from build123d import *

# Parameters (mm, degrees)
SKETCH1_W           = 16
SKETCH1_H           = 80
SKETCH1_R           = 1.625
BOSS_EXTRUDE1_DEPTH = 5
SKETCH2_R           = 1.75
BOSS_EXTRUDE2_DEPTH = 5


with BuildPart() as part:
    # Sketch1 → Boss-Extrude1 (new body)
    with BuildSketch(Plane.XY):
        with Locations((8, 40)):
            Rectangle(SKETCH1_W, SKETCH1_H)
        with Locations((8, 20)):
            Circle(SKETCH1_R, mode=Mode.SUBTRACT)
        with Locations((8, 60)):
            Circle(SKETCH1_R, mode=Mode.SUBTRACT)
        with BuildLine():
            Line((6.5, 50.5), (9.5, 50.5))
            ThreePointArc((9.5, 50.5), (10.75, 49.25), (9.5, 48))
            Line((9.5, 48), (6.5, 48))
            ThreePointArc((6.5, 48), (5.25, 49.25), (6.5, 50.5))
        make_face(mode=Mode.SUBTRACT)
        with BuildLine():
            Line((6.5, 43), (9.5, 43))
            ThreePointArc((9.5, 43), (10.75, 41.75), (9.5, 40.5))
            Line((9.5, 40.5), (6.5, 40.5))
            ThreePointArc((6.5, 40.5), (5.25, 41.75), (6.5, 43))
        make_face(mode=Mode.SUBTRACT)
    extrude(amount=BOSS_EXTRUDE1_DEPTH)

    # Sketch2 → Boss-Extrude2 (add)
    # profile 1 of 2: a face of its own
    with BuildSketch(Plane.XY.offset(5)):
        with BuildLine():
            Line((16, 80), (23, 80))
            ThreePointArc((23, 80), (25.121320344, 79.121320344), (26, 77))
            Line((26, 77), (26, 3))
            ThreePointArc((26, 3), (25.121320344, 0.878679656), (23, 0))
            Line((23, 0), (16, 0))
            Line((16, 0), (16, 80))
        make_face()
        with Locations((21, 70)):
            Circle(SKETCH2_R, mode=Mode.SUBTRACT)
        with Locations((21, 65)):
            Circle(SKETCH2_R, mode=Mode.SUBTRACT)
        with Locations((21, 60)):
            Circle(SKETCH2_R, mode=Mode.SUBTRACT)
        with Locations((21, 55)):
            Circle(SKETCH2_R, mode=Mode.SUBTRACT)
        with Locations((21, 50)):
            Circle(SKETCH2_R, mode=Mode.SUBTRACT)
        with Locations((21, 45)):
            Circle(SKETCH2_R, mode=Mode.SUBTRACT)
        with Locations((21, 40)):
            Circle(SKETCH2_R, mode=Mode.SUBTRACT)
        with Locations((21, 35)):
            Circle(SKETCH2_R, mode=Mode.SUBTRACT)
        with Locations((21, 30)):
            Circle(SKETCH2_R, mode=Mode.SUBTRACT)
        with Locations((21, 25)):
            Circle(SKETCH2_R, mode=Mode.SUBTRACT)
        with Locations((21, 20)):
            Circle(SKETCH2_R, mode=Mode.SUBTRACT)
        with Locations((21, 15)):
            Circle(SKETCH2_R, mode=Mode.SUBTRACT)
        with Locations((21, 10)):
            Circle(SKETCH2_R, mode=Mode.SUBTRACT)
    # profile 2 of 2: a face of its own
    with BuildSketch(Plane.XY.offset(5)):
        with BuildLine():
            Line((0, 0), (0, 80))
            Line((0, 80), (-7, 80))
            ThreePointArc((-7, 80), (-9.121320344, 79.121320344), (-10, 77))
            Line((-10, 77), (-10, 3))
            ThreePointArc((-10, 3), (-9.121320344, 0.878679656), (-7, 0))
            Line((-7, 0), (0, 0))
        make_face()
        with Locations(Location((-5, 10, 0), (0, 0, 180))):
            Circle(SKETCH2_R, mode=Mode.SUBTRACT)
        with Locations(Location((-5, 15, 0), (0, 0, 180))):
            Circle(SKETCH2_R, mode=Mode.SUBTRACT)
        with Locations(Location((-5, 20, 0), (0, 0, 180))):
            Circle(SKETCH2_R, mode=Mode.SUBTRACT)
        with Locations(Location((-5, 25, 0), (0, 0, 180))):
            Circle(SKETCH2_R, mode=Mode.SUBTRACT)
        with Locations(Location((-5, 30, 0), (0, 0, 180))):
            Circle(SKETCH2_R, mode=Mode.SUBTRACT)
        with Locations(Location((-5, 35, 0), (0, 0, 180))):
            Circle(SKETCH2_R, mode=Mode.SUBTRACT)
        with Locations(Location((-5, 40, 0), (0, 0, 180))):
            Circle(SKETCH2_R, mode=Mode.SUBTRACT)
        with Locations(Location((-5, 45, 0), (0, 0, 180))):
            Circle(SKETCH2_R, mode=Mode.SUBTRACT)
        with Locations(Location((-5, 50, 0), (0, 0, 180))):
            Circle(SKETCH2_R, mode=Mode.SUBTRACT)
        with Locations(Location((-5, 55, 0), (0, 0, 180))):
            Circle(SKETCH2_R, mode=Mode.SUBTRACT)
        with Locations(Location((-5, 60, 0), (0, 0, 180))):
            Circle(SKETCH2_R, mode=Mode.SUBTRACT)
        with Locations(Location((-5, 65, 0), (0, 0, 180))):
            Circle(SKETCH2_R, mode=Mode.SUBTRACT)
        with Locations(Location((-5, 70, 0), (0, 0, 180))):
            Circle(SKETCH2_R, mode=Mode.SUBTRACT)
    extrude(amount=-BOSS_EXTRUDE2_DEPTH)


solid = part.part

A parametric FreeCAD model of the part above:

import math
import FreeCAD as App
import Part
import Sketcher

V = App.Vector
Q = App.Units.Quantity

doc = App.newDocument("Part")
body = doc.addObject("PartDesign::Body", "Body")

sketch1 = doc.addObject("Sketcher::SketchObject", "Sketch")
body.addObject(sketch1)
sketch1.AttachmentSupport = (doc.XY_Plane, [""])
sketch1.MapMode = "FlatFace"
sketch1.addGeometry(Part.LineSegment(V(0, 80, 0), V(0, 0, 0)), False)
sketch1.addGeometry(Part.LineSegment(V(0, 0, 0), V(16, 0, 0)), False)
sketch1.addGeometry(Part.LineSegment(V(16, 0, 0), V(16, 80, 0)), False)
sketch1.addGeometry(Part.LineSegment(V(16, 80, 0), V(0, 80, 0)), False)
sketch1.addGeometry(Part.Circle(V(8, 20, 0), V(0, 0, 1), 1.6), False)
sketch1.addGeometry(Part.ArcOfCircle(Part.Circle(V(6.5, 41.8, 0), V(0, 0, 1), 1.2), math.radians(90), math.radians(270)), False)
sketch1.addGeometry(Part.LineSegment(V(6.5, 43, 0), V(9.5, 43, 0)), False)
sketch1.addGeometry(Part.ArcOfCircle(Part.Circle(V(9.5, 41.8, 0), V(0, 0, 1), 1.2), math.radians(-90), math.radians(90)), False)
sketch1.addGeometry(Part.LineSegment(V(9.5, 40.5, 0), V(6.5, 40.5, 0)), False)
sketch1.addGeometry(Part.ArcOfCircle(Part.Circle(V(6.5, 49.2, 0), V(0, 0, 1), 1.2), math.radians(90), math.radians(270)), False)
sketch1.addGeometry(Part.LineSegment(V(6.5, 50.5, 0), V(9.5, 50.5, 0)), False)
sketch1.addGeometry(Part.ArcOfCircle(Part.Circle(V(9.5, 49.2, 0), V(0, 0, 1), 1.2), math.radians(-90), math.radians(90)), False)
sketch1.addGeometry(Part.LineSegment(V(9.5, 48, 0), V(6.5, 48, 0)), False)
sketch1.addGeometry(Part.Circle(V(8, 60, 0), V(0, 0, 1), 1.6), False)
sketch1.addConstraint(Sketcher.Constraint("Coincident", 0, 2, 1, 1))
sketch1.addConstraint(Sketcher.Constraint("Coincident", 1, 2, 2, 1))
sketch1.addConstraint(Sketcher.Constraint("Coincident", 2, 2, 3, 1))
sketch1.addConstraint(Sketcher.Constraint("Coincident", 3, 2, 0, 1))
sketch1.addConstraint(Sketcher.Constraint("Tangent", 5, 1, 6, 1))
sketch1.addConstraint(Sketcher.Constraint("Tangent", 6, 2, 7, 2))
sketch1.addConstraint(Sketcher.Constraint("Tangent", 7, 1, 8, 1))
sketch1.addConstraint(Sketcher.Constraint("Tangent", 8, 2, 5, 2))
sketch1.addConstraint(Sketcher.Constraint("Tangent", 9, 1, 10, 1))
sketch1.addConstraint(Sketcher.Constraint("Tangent", 10, 2, 11, 2))
sketch1.addConstraint(Sketcher.Constraint("Tangent", 11, 1, 12, 1))
sketch1.addConstraint(Sketcher.Constraint("Tangent", 12, 2, 9, 2))
sketch1.addConstraint(Sketcher.Constraint("Vertical", 0))
sketch1.addConstraint(Sketcher.Constraint("Horizontal", 1))
sketch1.addConstraint(Sketcher.Constraint("Vertical", 2))
sketch1.addConstraint(Sketcher.Constraint("Horizontal", 3))
sketch1.addConstraint(Sketcher.Constraint("Horizontal", 6))
sketch1.addConstraint(Sketcher.Constraint("Horizontal", 8))
sketch1.addConstraint(Sketcher.Constraint("Horizontal", 10))
sketch1.addConstraint(Sketcher.Constraint("Horizontal", 12))
sketch1.addConstraint(Sketcher.Constraint("Coincident", 0, 2, -1, 1))
sketch1.addConstraint(Sketcher.Constraint("Equal", 7, 9))
sketch1.addConstraint(Sketcher.Constraint("Equal", 4, 13))
sketch1.addConstraint(Sketcher.Constraint("Vertical", 5, 3, 9, 3))
sketch1.addConstraint(Sketcher.Constraint("Vertical", 7, 3, 11, 3))
sketch1.addConstraint(Sketcher.Constraint("Vertical", 4, 3, 13, 3))
sketch1.addConstraint(Sketcher.Constraint("Diameter", 4, Q("3.25 mm")))
sketch1.addConstraint(Sketcher.Constraint("DistanceX", 1, 1, 1, 2, Q("16 mm")))
sketch1.addConstraint(Sketcher.Constraint("DistanceX", 6, 1, 6, 2, Q("3 mm")))
sketch1.addConstraint(Sketcher.Constraint("DistanceY", 0, 2, 0, 1, Q("80 mm")))
sketch1.addConstraint(Sketcher.Constraint("Radius", 5, Q("1.25 mm")))
sketch1.addConstraint(Sketcher.Constraint("DistanceX", -1, 1, 4, 3, Q("8 mm")))
sketch1.addConstraint(Sketcher.Constraint("DistanceY", -1, 1, 4, 3, Q("20 mm")))
sketch1.addConstraint(Sketcher.Constraint("DistanceY", -1, 1, 13, 3, Q("60 mm")))
sketch1.addConstraint(Sketcher.Constraint("DistanceY", -1, 1, 5, 1, Q("43 mm")))
sketch1.addConstraint(Sketcher.Constraint("DistanceY", -1, 1, 11, 1, Q("48 mm")))
sketch1.addConstraint(Sketcher.Constraint("DistanceX", -1, 1, 5, 3, Q("6.5 mm")))
pad1 = doc.addObject("PartDesign::Pad", "Pad")
body.addObject(pad1)
pad1.Profile = sketch1
pad1.Length = 5

sketch2 = doc.addObject("Sketcher::SketchObject", "Sketch001")
body.addObject(sketch2)
sketch2.AttachmentSupport = (doc.XY_Plane, [""])
sketch2.MapMode = "FlatFace"
sketch2.AttachmentOffset = App.Placement(V(0, 0, 5), App.Rotation())
sketch2.addGeometry(Part.LineSegment(V(23, 80, 0), V(16, 80, 0)), False)
sketch2.addGeometry(Part.LineSegment(V(16, 80, 0), V(16, 0, 0)), False)
sketch2.addGeometry(Part.LineSegment(V(16, 0, 0), V(23, 0, 0)), False)
sketch2.addGeometry(Part.ArcOfCircle(Part.Circle(V(23, 3, 0), V(0, 0, 1), 3), math.radians(-90), math.radians(0)), False)
sketch2.addGeometry(Part.LineSegment(V(26, 3, 0), V(26, 77, 0)), False)
sketch2.addGeometry(Part.ArcOfCircle(Part.Circle(V(23, 77, 0), V(0, 0, 1), 3), math.radians(0), math.radians(90)), False)
sketch2.addGeometry(Part.Circle(V(21, 10, 0), V(0, 0, 1), 1.8), False)
sketch2.addGeometry(Part.Circle(V(21, 15, 0), V(0, 0, 1), 1.8), False)
sketch2.addGeometry(Part.Circle(V(21, 20, 0), V(0, 0, 1), 1.8), False)
sketch2.addGeometry(Part.Circle(V(21, 25, 0), V(0, 0, 1), 1.8), False)
sketch2.addGeometry(Part.Circle(V(21, 30, 0), V(0, 0, 1), 1.8), False)
sketch2.addGeometry(Part.Circle(V(21, 35, 0), V(0, 0, 1), 1.8), False)
sketch2.addGeometry(Part.Circle(V(21, 40, 0), V(0, 0, 1), 1.8), False)
sketch2.addGeometry(Part.Circle(V(21, 45, 0), V(0, 0, 1), 1.8), False)
sketch2.addGeometry(Part.Circle(V(21, 50, 0), V(0, 0, 1), 1.8), False)
sketch2.addGeometry(Part.Circle(V(21, 55, 0), V(0, 0, 1), 1.8), False)
sketch2.addGeometry(Part.Circle(V(21, 60, 0), V(0, 0, 1), 1.8), False)
sketch2.addGeometry(Part.Circle(V(21, 65, 0), V(0, 0, 1), 1.8), False)
sketch2.addGeometry(Part.Circle(V(21, 70, 0), V(0, 0, 1), 1.8), False)
sketch2.addGeometry(Part.LineSegment(V(0, 0, 0), V(0, 80, 0)), False)
sketch2.addGeometry(Part.LineSegment(V(0, 80, 0), V(-7, 80, 0)), False)
sketch2.addGeometry(Part.ArcOfCircle(Part.Circle(V(-7, 77, 0), V(0, 0, 1), 3), math.radians(90), math.radians(180)), False)
sketch2.addGeometry(Part.LineSegment(V(-10, 77, 0), V(-10, 3, 0)), False)
sketch2.addGeometry(Part.ArcOfCircle(Part.Circle(V(-7, 3, 0), V(0, 0, 1), 3), math.radians(180), math.radians(270)), False)
sketch2.addGeometry(Part.LineSegment(V(-7, 0, 0), V(0, 0, 0)), False)
sketch2.addGeometry(Part.Circle(V(-5, 10, 0), V(0, 0, 1), 1.8), False)
sketch2.addGeometry(Part.Circle(V(-5, 15, 0), V(0, 0, 1), 1.8), False)
sketch2.addGeometry(Part.Circle(V(-5, 20, 0), V(0, 0, 1), 1.8), False)
sketch2.addGeometry(Part.Circle(V(-5, 25, 0), V(0, 0, 1), 1.8), False)
sketch2.addGeometry(Part.Circle(V(-5, 30, 0), V(0, 0, 1), 1.8), False)
sketch2.addGeometry(Part.Circle(V(-5, 35, 0), V(0, 0, 1), 1.8), False)
sketch2.addGeometry(Part.Circle(V(-5, 40, 0), V(0, 0, 1), 1.8), False)
sketch2.addGeometry(Part.Circle(V(-5, 45, 0), V(0, 0, 1), 1.8), False)
sketch2.addGeometry(Part.Circle(V(-5, 50, 0), V(0, 0, 1), 1.8), False)
sketch2.addGeometry(Part.Circle(V(-5, 55, 0), V(0, 0, 1), 1.8), False)
sketch2.addGeometry(Part.Circle(V(-5, 60, 0), V(0, 0, 1), 1.8), False)
sketch2.addGeometry(Part.Circle(V(-5, 65, 0), V(0, 0, 1), 1.8), False)
sketch2.addGeometry(Part.Circle(V(-5, 70, 0), V(0, 0, 1), 1.8), False)
sketch2.addConstraint(Sketcher.Constraint("Coincident", 0, 2, 1, 1))
sketch2.addConstraint(Sketcher.Constraint("Coincident", 1, 2, 2, 1))
sketch2.addConstraint(Sketcher.Constraint("Tangent", 2, 2, 3, 1))
sketch2.addConstraint(Sketcher.Constraint("Tangent", 3, 2, 4, 1))
sketch2.addConstraint(Sketcher.Constraint("Tangent", 4, 2, 5, 1))
sketch2.addConstraint(Sketcher.Constraint("Tangent", 5, 2, 0, 1))
sketch2.addConstraint(Sketcher.Constraint("Coincident", 19, 2, 20, 1))
sketch2.addConstraint(Sketcher.Constraint("Tangent", 20, 2, 21, 1))
sketch2.addConstraint(Sketcher.Constraint("Tangent", 21, 2, 22, 1))
sketch2.addConstraint(Sketcher.Constraint("Tangent", 22, 2, 23, 1))
sketch2.addConstraint(Sketcher.Constraint("Tangent", 23, 2, 24, 1))
sketch2.addConstraint(Sketcher.Constraint("Coincident", 24, 2, 19, 1))
sketch2.addConstraint(Sketcher.Constraint("Horizontal", 0))
sketch2.addConstraint(Sketcher.Constraint("Vertical", 1))
sketch2.addConstraint(Sketcher.Constraint("Horizontal", 2))
sketch2.addConstraint(Sketcher.Constraint("Vertical", 4))
sketch2.addConstraint(Sketcher.Constraint("Vertical", 19))
sketch2.addConstraint(Sketcher.Constraint("Horizontal", 20))
sketch2.addConstraint(Sketcher.Constraint("Vertical", 22))
sketch2.addConstraint(Sketcher.Constraint("Horizontal", 24))
sketch2.addConstraint(Sketcher.Constraint("Coincident", 24, 2, -1, 1))
sketch2.addConstraint(Sketcher.Constraint("Equal", 3, 5))
sketch2.addConstraint(Sketcher.Constraint("Equal", 6, 7))
sketch2.addConstraint(Sketcher.Constraint("Equal", 7, 8))
sketch2.addConstraint(Sketcher.Constraint("Equal", 8, 9))
sketch2.addConstraint(Sketcher.Constraint("Equal", 9, 10))
sketch2.addConstraint(Sketcher.Constraint("Equal", 10, 11))
sketch2.addConstraint(Sketcher.Constraint("Equal", 11, 12))
sketch2.addConstraint(Sketcher.Constraint("Equal", 12, 13))
sketch2.addConstraint(Sketcher.Constraint("Equal", 13, 14))
sketch2.addConstraint(Sketcher.Constraint("Equal", 14, 15))
sketch2.addConstraint(Sketcher.Constraint("Equal", 15, 16))
sketch2.addConstraint(Sketcher.Constraint("Equal", 16, 17))
sketch2.addConstraint(Sketcher.Constraint("Equal", 17, 18))
sketch2.addConstraint(Sketcher.Constraint("Equal", 5, 21))
sketch2.addConstraint(Sketcher.Constraint("Equal", 21, 23))
sketch2.addConstraint(Sketcher.Constraint("Equal", 18, 25))
sketch2.addConstraint(Sketcher.Constraint("Equal", 25, 26))
sketch2.addConstraint(Sketcher.Constraint("Equal", 26, 27))
sketch2.addConstraint(Sketcher.Constraint("Equal", 27, 28))
sketch2.addConstraint(Sketcher.Constraint("Equal", 28, 29))
sketch2.addConstraint(Sketcher.Constraint("Equal", 29, 30))
sketch2.addConstraint(Sketcher.Constraint("Equal", 30, 31))
sketch2.addConstraint(Sketcher.Constraint("Equal", 31, 32))
sketch2.addConstraint(Sketcher.Constraint("Equal", 32, 33))
sketch2.addConstraint(Sketcher.Constraint("Equal", 33, 34))
sketch2.addConstraint(Sketcher.Constraint("Equal", 34, 35))
sketch2.addConstraint(Sketcher.Constraint("Equal", 35, 36))
sketch2.addConstraint(Sketcher.Constraint("Equal", 36, 37))
sketch2.addConstraint(Sketcher.Constraint("PointOnObject", 1, 2, -1))
sketch2.addConstraint(Sketcher.Constraint("Horizontal", 5, 3, 21, 3))
sketch2.addConstraint(Sketcher.Constraint("Horizontal", 6, 3, 25, 3))
sketch2.addConstraint(Sketcher.Constraint("Horizontal", 7, 3, 26, 3))
sketch2.addConstraint(Sketcher.Constraint("Horizontal", 8, 3, 27, 3))
sketch2.addConstraint(Sketcher.Constraint("Horizontal", 9, 3, 28, 3))
sketch2.addConstraint(Sketcher.Constraint("Horizontal", 10, 3, 29, 3))
sketch2.addConstraint(Sketcher.Constraint("Horizontal", 11, 3, 30, 3))
sketch2.addConstraint(Sketcher.Constraint("Horizontal", 12, 3, 31, 3))
sketch2.addConstraint(Sketcher.Constraint("Horizontal", 13, 3, 32, 3))
sketch2.addConstraint(Sketcher.Constraint("Horizontal", 14, 3, 33, 3))
sketch2.addConstraint(Sketcher.Constraint("Horizontal", 15, 3, 34, 3))
sketch2.addConstraint(Sketcher.Constraint("Horizontal", 16, 3, 35, 3))
sketch2.addConstraint(Sketcher.Constraint("Horizontal", 17, 3, 36, 3))
sketch2.addConstraint(Sketcher.Constraint("Horizontal", 18, 3, 37, 3))
sketch2.addConstraint(Sketcher.Constraint("Vertical", 6, 3, 7, 3))
sketch2.addConstraint(Sketcher.Constraint("Vertical", 7, 3, 8, 3))
sketch2.addConstraint(Sketcher.Constraint("Vertical", 8, 3, 9, 3))
sketch2.addConstraint(Sketcher.Constraint("Vertical", 9, 3, 10, 3))
sketch2.addConstraint(Sketcher.Constraint("Vertical", 10, 3, 11, 3))
sketch2.addConstraint(Sketcher.Constraint("Vertical", 11, 3, 12, 3))
sketch2.addConstraint(Sketcher.Constraint("Vertical", 12, 3, 13, 3))
sketch2.addConstraint(Sketcher.Constraint("Vertical", 13, 3, 14, 3))
sketch2.addConstraint(Sketcher.Constraint("Vertical", 14, 3, 15, 3))
sketch2.addConstraint(Sketcher.Constraint("Vertical", 15, 3, 16, 3))
sketch2.addConstraint(Sketcher.Constraint("Vertical", 16, 3, 17, 3))
sketch2.addConstraint(Sketcher.Constraint("Vertical", 17, 3, 18, 3))
sketch2.addConstraint(Sketcher.Constraint("Vertical", 25, 3, 26, 3))
sketch2.addConstraint(Sketcher.Constraint("Vertical", 26, 3, 27, 3))
sketch2.addConstraint(Sketcher.Constraint("Vertical", 27, 3, 28, 3))
sketch2.addConstraint(Sketcher.Constraint("Vertical", 28, 3, 29, 3))
sketch2.addConstraint(Sketcher.Constraint("Vertical", 29, 3, 30, 3))
sketch2.addConstraint(Sketcher.Constraint("Vertical", 30, 3, 31, 3))
sketch2.addConstraint(Sketcher.Constraint("Vertical", 31, 3, 32, 3))
sketch2.addConstraint(Sketcher.Constraint("Vertical", 32, 3, 33, 3))
sketch2.addConstraint(Sketcher.Constraint("Vertical", 33, 3, 34, 3))
sketch2.addConstraint(Sketcher.Constraint("Vertical", 34, 3, 35, 3))
sketch2.addConstraint(Sketcher.Constraint("Vertical", 35, 3, 36, 3))
sketch2.addConstraint(Sketcher.Constraint("Vertical", 36, 3, 37, 3))
sketch2.addConstraint(Sketcher.Constraint("Equal", 2, 20))
sketch2.addConstraint(Sketcher.Constraint("Radius", 3, Q("3 mm")))
sketch2.addConstraint(Sketcher.Constraint("Diameter", 6, Q("3.5 mm")))
sketch2.addConstraint(Sketcher.Constraint("DistanceX", 0, 2, 0, 1, Q("7 mm")))
sketch2.addConstraint(Sketcher.Constraint("DistanceY", 1, 2, 1, 1, Q("80 mm")))
sketch2.addConstraint(Sketcher.Constraint("DistanceX", -1, 1, 3, 3, Q("23 mm")))
sketch2.addConstraint(Sketcher.Constraint("DistanceX", -1, 1, 6, 3, Q("21 mm")))
sketch2.addConstraint(Sketcher.Constraint("DistanceY", -1, 1, 6, 3, Q("10 mm")))
sketch2.addConstraint(Sketcher.Constraint("DistanceY", -1, 1, 7, 3, Q("15 mm")))
sketch2.addConstraint(Sketcher.Constraint("DistanceY", -1, 1, 8, 3, Q("20 mm")))
sketch2.addConstraint(Sketcher.Constraint("DistanceY", -1, 1, 9, 3, Q("25 mm")))
sketch2.addConstraint(Sketcher.Constraint("DistanceY", -1, 1, 10, 3, Q("30 mm")))
sketch2.addConstraint(Sketcher.Constraint("DistanceY", -1, 1, 11, 3, Q("35 mm")))
sketch2.addConstraint(Sketcher.Constraint("DistanceY", -1, 1, 12, 3, Q("40 mm")))
sketch2.addConstraint(Sketcher.Constraint("DistanceY", -1, 1, 13, 3, Q("45 mm")))
sketch2.addConstraint(Sketcher.Constraint("DistanceY", -1, 1, 14, 3, Q("50 mm")))
sketch2.addConstraint(Sketcher.Constraint("DistanceY", -1, 1, 15, 3, Q("55 mm")))
sketch2.addConstraint(Sketcher.Constraint("DistanceY", -1, 1, 16, 3, Q("60 mm")))
sketch2.addConstraint(Sketcher.Constraint("DistanceY", -1, 1, 17, 3, Q("65 mm")))
sketch2.addConstraint(Sketcher.Constraint("DistanceY", -1, 1, 18, 3, Q("70 mm")))
sketch2.addConstraint(Sketcher.Constraint("DistanceX", 25, 3, -1, 1, Q("5 mm")))
pad2 = doc.addObject("PartDesign::Pad", "Pad001")
body.addObject(pad2)
pad2.Profile = sketch2
pad2.Length = 5
pad2.Reversed = True

doc.recompute()
